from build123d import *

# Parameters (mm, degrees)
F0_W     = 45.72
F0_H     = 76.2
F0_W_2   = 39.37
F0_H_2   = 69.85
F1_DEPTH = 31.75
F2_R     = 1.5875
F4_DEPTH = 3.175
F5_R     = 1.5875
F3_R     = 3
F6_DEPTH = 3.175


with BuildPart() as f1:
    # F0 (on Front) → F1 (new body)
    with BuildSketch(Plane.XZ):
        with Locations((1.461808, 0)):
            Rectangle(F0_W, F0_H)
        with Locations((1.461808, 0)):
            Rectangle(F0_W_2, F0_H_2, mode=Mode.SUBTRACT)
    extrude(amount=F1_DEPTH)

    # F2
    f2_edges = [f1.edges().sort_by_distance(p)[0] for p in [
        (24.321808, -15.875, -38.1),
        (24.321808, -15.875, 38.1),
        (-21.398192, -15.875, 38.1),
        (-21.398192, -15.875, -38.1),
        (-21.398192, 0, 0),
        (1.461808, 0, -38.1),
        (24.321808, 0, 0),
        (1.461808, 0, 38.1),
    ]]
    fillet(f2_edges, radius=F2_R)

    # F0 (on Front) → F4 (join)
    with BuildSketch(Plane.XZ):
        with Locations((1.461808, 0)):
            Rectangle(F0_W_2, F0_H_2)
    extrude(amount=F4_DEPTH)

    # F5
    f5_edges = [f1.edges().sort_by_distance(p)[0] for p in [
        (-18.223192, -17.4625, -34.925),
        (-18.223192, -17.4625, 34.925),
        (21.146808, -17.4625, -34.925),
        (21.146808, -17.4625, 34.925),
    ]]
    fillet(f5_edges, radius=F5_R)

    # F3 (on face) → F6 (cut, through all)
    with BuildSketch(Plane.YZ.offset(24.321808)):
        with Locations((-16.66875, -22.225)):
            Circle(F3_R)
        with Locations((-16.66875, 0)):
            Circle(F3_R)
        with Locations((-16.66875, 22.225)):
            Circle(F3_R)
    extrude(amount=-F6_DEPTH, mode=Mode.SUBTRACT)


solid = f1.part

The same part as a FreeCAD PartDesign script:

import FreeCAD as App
import Part
import Sketcher
Q = App.Units.Quantity


def edges_at(feature, points):
    """Names of the edges that pass closest to the given points."""
    edges = feature.Shape.Edges
    near = lambda p: min(range(len(edges)), key=lambda i: edges[i].distToShape(Part.Vertex(*p))[0])
    return sorted({f"Edge{near(p) + 1}" for p in points})


def add_polygon(sketch, points):
    """Adds a closed chain of lines whose ends are joined by coincident constraints."""
    first, n = sketch.GeometryCount, len(points)
    for a, b in zip(points, points[1:] + points[:1]):
        sketch.addGeometry(Part.LineSegment(App.Vector(*a, 0), App.Vector(*b, 0)), False)
    for i in range(n):
        sketch.addConstraint(Sketcher.Constraint("Coincident", first + i, 2, first + (i + 1) % n, 1))

doc = App.newDocument("Part")
body = doc.addObject("PartDesign::Body", "Body")

sketch1 = body.newObject("Sketcher::SketchObject", "Sketch")
sketch1.AttachmentSupport = (doc.getObject("XZ_Plane"), [""])
sketch1.MapMode = "FlatFace"
add_polygon(sketch1, [(-21, 38), (-21, -38), (24, -38), (24, 38)])
add_polygon(sketch1, [(21, -35), (-18, -35), (-18, 35), (21, 35)])
sketch1.addConstraint([
    Sketcher.Constraint("Vertical", 0),
    Sketcher.Constraint("Horizontal", 1),
    Sketcher.Constraint("Vertical", 2),
    Sketcher.Constraint("Horizontal", 3),
    Sketcher.Constraint("Horizontal", 4),
    Sketcher.Constraint("Vertical", 5),
    Sketcher.Constraint("Horizontal", 6),
    Sketcher.Constraint("Vertical", 7),
    Sketcher.Constraint("DistanceY", 0, 2, 0, 1, Q("3 in")),
    Sketcher.Constraint("DistanceX", 1, 1, 1, 2, Q("1.8 in")),
    Sketcher.Constraint("DistanceX", 4, 2, 4, 1, Q("1.55 in")),
    Sketcher.Constraint("DistanceY", 5, 1, 5, 2, Q("2.75 in")),
    Sketcher.Constraint("DistanceY", 0, 2, -1, 1, Q("1.5 in")),
    Sketcher.Constraint("DistanceY", 4, 2, -1, 1, Q("1.375 in")),
    Sketcher.Constraint("DistanceX", 0, 2, 4, 2, Q("0.125 in")),
    Sketcher.Constraint("DistanceX", -1, 1, 1, 2, Q("24.321808 mm")),
])
pad1 = body.newObject("PartDesign::Pad", "Pad")
pad1.Profile = sketch1
pad1.Length = Q("1.25 in")
doc.recompute()

fillet = body.newObject("PartDesign::Fillet", "Fillet")
fillet.Base = (pad1, edges_at(pad1, [
    (24.322, -15.875, -38.1),
    (24.322, -15.875, 38.1),
    (-21.398, -15.875, 38.1),
    (-21.398, -15.875, -38.1),
    (-21.398, 0, 0),
    (1.462, 0, -38.1),
    (24.322, 0, 0),
    (1.462, 0, 38.1),
]))
fillet.Radius = Q("0.0625 in")

sketch2 = body.newObject("Sketcher::SketchObject", "Sketch001")
sketch2.AttachmentSupport = (doc.getObject("XZ_Plane"), [""])
sketch2.MapMode = "FlatFace"
add_polygon(sketch2, [(-18, 35), (-18, -35), (21, -35), (21, 35)])
sketch2.addConstraint([
    Sketcher.Constraint("Vertical", 0),
    Sketcher.Constraint("Horizontal", 1),
    Sketcher.Constraint("Vertical", 2),
    Sketcher.Constraint("Horizontal", 3),
    Sketcher.Constraint("DistanceX", 1, 1, 1, 2, Q("1.55 in")),
    Sketcher.Constraint("DistanceY", 0, 2, 0, 1, Q("2.75 in")),
    Sketcher.Constraint("DistanceY", 0, 2, -1, 1, Q("1.375 in")),
    Sketcher.Constraint("DistanceX", -1, 1, 1, 2, Q("21.146808 mm")),
])
pad2 = body.newObject("PartDesign::Pad", "Pad001")
pad2.Profile = sketch2
pad2.Length = Q("0.125 in")
doc.recompute()

fillet2 = body.newObject("PartDesign::Fillet", "Fillet001")
fillet2.Base = (pad2, edges_at(pad2, [
    (-18.223, -17.462, -34.925),
    (-18.223, -17.462, 34.925),
    (21.147, -17.462, -34.925),
    (21.147, -17.462, 34.925),
]))
fillet2.Radius = Q("0.0625 in")

sketch3 = body.newObject("Sketcher::SketchObject", "Sketch002")
sketch3.AttachmentSupport = (doc.getObject("YZ_Plane"), [""])
sketch3.MapMode = "FlatFace"
sketch3.AttachmentOffset = App.Placement(App.Vector(0, 0, 24.321808), App.Rotation())
sketch3.addGeometry([
    Part.Circle(App.Vector(-16.7, -22.2, 0), App.Vector(0, 0, 1), 3),
    Part.Circle(App.Vector(-16.7, 0, 0), App.Vector(0, 0, 1), 3),
    Part.Circle(App.Vector(-16.7, 22.2, 0), App.Vector(0, 0, 1), 3),
], False)
sketch3.addConstraint([
    Sketcher.Constraint("Equal", 0, 1),
    Sketcher.Constraint("Equal", 1, 2),
    Sketcher.Constraint("Symmetric", 0, 3, 2, 3, -1),
    Sketcher.Constraint("PointOnObject", 1, 3, -1),
    Sketcher.Constraint("Vertical", 0, 3, 1, 3),
    Sketcher.Constraint("Diameter", 0, Q("6 mm")),
    Sketcher.Constraint("DistanceY", 0, 3, 2, 3, Q("1.75 in")),
    Sketcher.Constraint("DistanceX", 0, 3, -1, 1, Q("0.65625 in")),
])
pocket1 = body.newObject("PartDesign::Pocket", "Pocket")
pocket1.Profile = sketch3
pocket1.Length = Q("0.125 in")

doc.recompute()
